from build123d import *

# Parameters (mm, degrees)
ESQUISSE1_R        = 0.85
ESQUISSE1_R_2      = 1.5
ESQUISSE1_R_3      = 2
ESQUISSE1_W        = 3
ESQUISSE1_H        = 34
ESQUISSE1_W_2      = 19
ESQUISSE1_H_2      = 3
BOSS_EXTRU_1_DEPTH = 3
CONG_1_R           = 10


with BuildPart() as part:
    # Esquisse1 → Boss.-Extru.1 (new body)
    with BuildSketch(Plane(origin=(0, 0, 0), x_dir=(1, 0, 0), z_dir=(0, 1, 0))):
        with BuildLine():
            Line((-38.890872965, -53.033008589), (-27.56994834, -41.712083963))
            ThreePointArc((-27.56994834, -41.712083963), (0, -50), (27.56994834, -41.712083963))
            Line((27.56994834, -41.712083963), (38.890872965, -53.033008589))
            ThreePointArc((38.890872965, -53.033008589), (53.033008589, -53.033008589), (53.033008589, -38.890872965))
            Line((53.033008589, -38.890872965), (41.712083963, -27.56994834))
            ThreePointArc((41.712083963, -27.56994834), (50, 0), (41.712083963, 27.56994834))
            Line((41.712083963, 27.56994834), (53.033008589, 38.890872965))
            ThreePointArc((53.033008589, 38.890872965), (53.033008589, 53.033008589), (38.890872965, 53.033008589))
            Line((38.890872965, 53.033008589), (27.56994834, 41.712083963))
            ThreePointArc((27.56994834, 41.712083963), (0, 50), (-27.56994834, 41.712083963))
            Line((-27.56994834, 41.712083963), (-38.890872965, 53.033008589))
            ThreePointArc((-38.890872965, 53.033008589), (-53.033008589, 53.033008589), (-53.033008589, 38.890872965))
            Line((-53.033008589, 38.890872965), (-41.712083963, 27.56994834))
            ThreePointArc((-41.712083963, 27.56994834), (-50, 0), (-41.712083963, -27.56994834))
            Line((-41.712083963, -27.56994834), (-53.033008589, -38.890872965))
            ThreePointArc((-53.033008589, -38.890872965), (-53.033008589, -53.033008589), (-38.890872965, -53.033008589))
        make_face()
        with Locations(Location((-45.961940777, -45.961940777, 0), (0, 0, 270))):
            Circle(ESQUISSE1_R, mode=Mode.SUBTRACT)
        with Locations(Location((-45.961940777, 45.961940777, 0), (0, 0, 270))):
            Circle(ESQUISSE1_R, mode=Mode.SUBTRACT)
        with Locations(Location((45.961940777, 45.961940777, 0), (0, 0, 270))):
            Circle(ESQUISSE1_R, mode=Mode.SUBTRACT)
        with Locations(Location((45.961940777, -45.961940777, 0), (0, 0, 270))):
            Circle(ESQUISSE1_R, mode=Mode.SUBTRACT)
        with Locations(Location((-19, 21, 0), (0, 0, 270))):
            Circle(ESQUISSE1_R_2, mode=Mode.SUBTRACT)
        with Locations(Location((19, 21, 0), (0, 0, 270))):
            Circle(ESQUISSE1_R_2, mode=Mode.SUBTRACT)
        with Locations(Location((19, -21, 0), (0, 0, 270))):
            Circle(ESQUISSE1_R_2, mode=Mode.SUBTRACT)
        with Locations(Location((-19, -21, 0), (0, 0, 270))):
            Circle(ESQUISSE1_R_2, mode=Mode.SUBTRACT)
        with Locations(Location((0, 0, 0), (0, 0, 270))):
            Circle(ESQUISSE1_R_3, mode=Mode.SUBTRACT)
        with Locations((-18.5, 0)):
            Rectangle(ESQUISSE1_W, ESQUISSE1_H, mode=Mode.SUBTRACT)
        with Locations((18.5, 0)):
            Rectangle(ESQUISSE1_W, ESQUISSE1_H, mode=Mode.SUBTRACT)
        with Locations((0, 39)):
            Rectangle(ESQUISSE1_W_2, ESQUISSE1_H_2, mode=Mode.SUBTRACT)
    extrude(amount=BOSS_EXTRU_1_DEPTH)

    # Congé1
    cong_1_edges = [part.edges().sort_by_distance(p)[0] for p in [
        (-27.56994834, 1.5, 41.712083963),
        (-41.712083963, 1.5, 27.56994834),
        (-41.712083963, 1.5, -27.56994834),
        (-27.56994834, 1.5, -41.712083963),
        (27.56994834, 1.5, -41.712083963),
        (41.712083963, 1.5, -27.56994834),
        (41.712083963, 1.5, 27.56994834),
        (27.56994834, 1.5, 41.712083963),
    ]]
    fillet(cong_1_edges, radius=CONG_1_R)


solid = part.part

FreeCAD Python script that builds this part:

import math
import FreeCAD as App
import Part
import Sketcher

V = App.Vector
Q = App.Units.Quantity


def edges_at(feature, points):
    """Names of the edges that pass closest to the given points."""
    edges = feature.Shape.Edges
    near = lambda p: min(range(len(edges)), key=lambda i: edges[i].distToShape(Part.Vertex(*p))[0])
    return sorted({f"Edge{near(p) + 1}" for p in points})

doc = App.newDocument("Part")
params = doc.addObject("Spreadsheet::Sheet", "Params")
for row, (alias, value) in enumerate([
    ("sketch1_diameter", "3 mm"),
    ("sketch1_diameter2", "4 mm"),
    ("sketch1_radius", "50 mm"),
    ("sketch1_radius2", "10 mm"),
    ("sketch1_diameter3", "1.7 mm"),
    ("pad1_length", "3 mm"),
    ("fillet_radius", "10 mm"),
], start=1):
    params.set(f"A{row}", alias)
    params.set(f"B{row}", "=" + value)
    params.setAlias(f"B{row}", alias)

body = doc.addObject("PartDesign::Body", "Body")

sketch1 = doc.addObject("Sketcher::SketchObject", "Sketch")
body.addObject(sketch1)
sketch1.AttachmentSupport = (doc.XZ_Plane, [""])
sketch1.MapMode = "FlatFace"
sketch1.addGeometry(Part.LineSegment(V(-38.9, 53, 0), V(-27.6, 41.7, 0)), False)
sketch1.addGeometry(Part.ArcOfCircle(Part.Circle(V(0, 0, 0), V(0, 0, 1), 50), math.radians(57), math.radians(123)), False)
sketch1.addGeometry(Part.LineSegment(V(27.6, 41.7, 0), V(38.9, 53, 0)), False)
sketch1.addGeometry(Part.ArcOfCircle(Part.Circle(V(46, 46, 0), V(0, 0, 1), 10), math.radians(-45), math.radians(135)), False)
sketch1.addGeometry(Part.LineSegment(V(53, 38.9, 0), V(41.7, 27.6, 0)), False)
sketch1.addGeometry(Part.ArcOfCircle(Part.Circle(V(0, 0, 0), V(0, 0, 1), 50), math.radians(-33), math.radians(33)), False)
sketch1.addGeometry(Part.LineSegment(V(41.7, -27.6, 0), V(53, -38.9, 0)), False)
sketch1.addGeometry(Part.ArcOfCircle(Part.Circle(V(46, -46, 0), V(0, 0, 1), 10), math.radians(-135), math.radians(45)), False)
sketch1.addGeometry(Part.LineSegment(V(38.9, -53, 0), V(27.6, -41.7, 0)), False)
sketch1.addGeometry(Part.ArcOfCircle(Part.Circle(V(0, 0, 0), V(0, 0, 1), 50), math.radians(-123), math.radians(-57)), False)
sketch1.addGeometry(Part.LineSegment(V(-27.6, -41.7, 0), V(-38.9, -53, 0)), False)
sketch1.addGeometry(Part.ArcOfCircle(Part.Circle(V(-46, -46, 0), V(0, 0, 1), 10), math.radians(135), math.radians(315)), False)
sketch1.addGeometry(Part.LineSegment(V(-53, -38.9, 0), V(-41.7, -27.6, 0)), False)
sketch1.addGeometry(Part.ArcOfCircle(Part.Circle(V(0, 0, 0), V(0, 0, 1), 50), math.radians(147), math.radians(213)), False)
sketch1.addGeometry(Part.LineSegment(V(-41.7, 27.6, 0), V(-53, 38.9, 0)), False)
sketch1.addGeometry(Part.ArcOfCircle(Part.Circle(V(-46, 46, 0), V(0, 0, 1), 10), math.radians(45), math.radians(225)), False)
sketch1.addGeometry(Part.Circle(V(-46, 46, 0), V(0, 0, 1), 0.8), False)
sketch1.addGeometry(Part.Circle(V(-19, 21, 0), V(0, 0, 1), 1.5), False)
sketch1.addGeometry(Part.Circle(V(46, 46, 0), V(0, 0, 1), 0.8), False)
sketch1.addGeometry(Part.Circle(V(19, 21, 0), V(0, 0, 1), 1.5), False)
sketch1.addGeometry(Part.LineSegment(V(-17, 17, 0), V(-20, 17, 0)), False)
sketch1.addGeometry(Part.LineSegment(V(-20, 17, 0), V(-20, -17, 0)), False)
sketch1.addGeometry(Part.LineSegment(V(-20, -17, 0), V(-17, -17, 0)), False)
sketch1.addGeometry(Part.LineSegment(V(-17, -17, 0), V(-17, 17, 0)), False)
sketch1.addGeometry(Part.Circle(V(-19, -21, 0), V(0, 0, 1), 1.5), False)
sketch1.addGeometry(Part.Circle(V(-46, -46, 0), V(0, 0, 1), 0.8), False)
sketch1.addGeometry(Part.Circle(V(0, 0, 0), V(0, 0, 1), 2), False)
sketch1.addGeometry(Part.LineSegment(V(20, 17, 0), V(17, 17, 0)), False)
sketch1.addGeometry(Part.LineSegment(V(17, 17, 0), V(17, -17, 0)), False)
sketch1.addGeometry(Part.LineSegment(V(17, -17, 0), V(20, -17, 0)), False)
sketch1.addGeometry(Part.LineSegment(V(20, -17, 0), V(20, 17, 0)), False)
sketch1.addGeometry(Part.Circle(V(19, -21, 0), V(0, 0, 1), 1.5), False)
sketch1.addGeometry(Part.LineSegment(V(9.5, -37.5, 0), V(-9.5, -37.5, 0)), False)
sketch1.addGeometry(Part.LineSegment(V(-9.5, -37.5, 0), V(-9.5, -40.5, 0)), False)
sketch1.addGeometry(Part.LineSegment(V(-9.5, -40.5, 0), V(9.5, -40.5, 0)), False)
sketch1.addGeometry(Part.LineSegment(V(9.5, -40.5, 0), V(9.5, -37.5, 0)), False)
sketch1.addGeometry(Part.Circle(V(46, -46, 0), V(0, 0, 1), 0.8), False)
sketch1.addConstraint(Sketcher.Constraint("Coincident", 0, 2, 1, 2))
sketch1.addConstraint(Sketcher.Constraint("Coincident", 1, 1, 2, 1))
sketch1.addConstraint(Sketcher.Constraint("Tangent", 2, 2, 3, 2))
sketch1.addConstraint(Sketcher.Constraint("Tangent", 3, 1, 4, 1))
sketch1.addConstraint(Sketcher.Constraint("Coincident", 4, 2, 5, 2))
sketch1.addConstraint(Sketcher.Constraint("Coincident", 5, 1, 6, 1))
sketch1.addConstraint(Sketcher.Constraint("Tangent", 6, 2, 7, 2))
sketch1.addConstraint(Sketcher.Constraint("Tangent", 7, 1, 8, 1))
sketch1.addConstraint(Sketcher.Constraint("Coincident", 8, 2, 9, 2))
sketch1.addConstraint(Sketcher.Constraint("Coincident", 9, 1, 10, 1))
sketch1.addConstraint(Sketcher.Constraint("Tangent", 10, 2, 11, 2))
sketch1.addConstraint(Sketcher.Constraint("Tangent", 11, 1, 12, 1))
sketch1.addConstraint(Sketcher.Constraint("Coincident", 12, 2, 13, 2))
sketch1.addConstraint(Sketcher.Constraint("Coincident", 13, 1, 14, 1))
sketch1.addConstraint(Sketcher.Constraint("Tangent", 14, 2, 15, 2))
sketch1.addConstraint(Sketcher.Constraint("Tangent", 15, 1, 0, 1))
sketch1.addConstraint(Sketcher.Constraint("Coincident", 20, 2, 21, 1))
sketch1.addConstraint(Sketcher.Constraint("Coincident", 21, 2, 22, 1))
sketch1.addConstraint(Sketcher.Constraint("Coincident", 22, 2, 23, 1))
sketch1.addConstraint(Sketcher.Constraint("Coincident", 23, 2, 20, 1))
sketch1.addConstraint(Sketcher.Constraint("Coincident", 27, 2, 28, 1))
sketch1.addConstraint(Sketcher.Constraint("Coincident", 28, 2, 29, 1))
sketch1.addConstraint(Sketcher.Constraint("Coincident", 29, 2, 30, 1))
sketch1.addConstraint(Sketcher.Constraint("Coincident", 30, 2, 27, 1))
sketch1.addConstraint(Sketcher.Constraint("Coincident", 32, 2, 33, 1))
sketch1.addConstraint(Sketcher.Constraint("Coincident", 33, 2, 34, 1))
sketch1.addConstraint(Sketcher.Constraint("Coincident", 34, 2, 35, 1))
sketch1.addConstraint(Sketcher.Constraint("Coincident", 35, 2, 32, 1))
sketch1.addConstraint(Sketcher.Constraint("Horizontal", 20))
sketch1.addConstraint(Sketcher.Constraint("Vertical", 21))
sketch1.addConstraint(Sketcher.Constraint("Horizontal", 22))
sketch1.addConstraint(Sketcher.Constraint("Vertical", 23))
sketch1.addConstraint(Sketcher.Constraint("Horizontal", 27))
sketch1.addConstraint(Sketcher.Constraint("Vertical", 28))
sketch1.addConstraint(Sketcher.Constraint("Horizontal", 29))
sketch1.addConstraint(Sketcher.Constraint("Vertical", 30))
sketch1.addConstraint(Sketcher.Constraint("Horizontal", 32))
sketch1.addConstraint(Sketcher.Constraint("Vertical", 33))
sketch1.addConstraint(Sketcher.Constraint("Horizontal", 34))
sketch1.addConstraint(Sketcher.Constraint("Vertical", 35))
sketch1.addConstraint(Sketcher.Constraint("Coincident", 1, 3, -1, 1))
sketch1.addConstraint(Sketcher.Constraint("Coincident", 5, 3, -1, 1))
sketch1.addConstraint(Sketcher.Constraint("Coincident", 9, 3, -1, 1))
sketch1.addConstraint(Sketcher.Constraint("Coincident", 13, 3, -1, 1))
sketch1.addConstraint(Sketcher.Constraint("Coincident", 26, 3, -1, 1))
sketch1.addConstraint(Sketcher.Constraint("Coincident", 16, 3, 15, 3))
sketch1.addConstraint(Sketcher.Constraint("Coincident", 18, 3, 3, 3))
sketch1.addConstraint(Sketcher.Constraint("Coincident", 25, 3, 11, 3))
sketch1.addConstraint(Sketcher.Constraint("Coincident", 36, 3, 7, 3))
sketch1.addConstraint(Sketcher.Constraint("Equal", 1, 5))
sketch1.addConstraint(Sketcher.Constraint("Equal", 3, 7))
sketch1.addConstraint(Sketcher.Constraint("Equal", 5, 9))
sketch1.addConstraint(Sketcher.Constraint("Equal", 7, 11))
sketch1.addConstraint(Sketcher.Constraint("Equal", 9, 13))
sketch1.addConstraint(Sketcher.Constraint("Equal", 11, 15))
sketch1.addConstraint(Sketcher.Constraint("Equal", 16, 18))
sketch1.addConstraint(Sketcher.Constraint("Equal", 17, 19))
sketch1.addConstraint(Sketcher.Constraint("Equal", 19, 24))
sketch1.addConstraint(Sketcher.Constraint("Equal", 18, 25))
sketch1.addConstraint(Sketcher.Constraint("Equal", 24, 31))
sketch1.addConstraint(Sketcher.Constraint("Equal", 25, 36))
sketch1.addConstraint(Sketcher.Constraint("Symmetric", 3, 3, 11, 3, -1, 1))
sketch1.addConstraint(Sketcher.Constraint("Symmetric", 7, 3, 15, 3, -1, 1))
sketch1.addConstraint(Sketcher.Constraint("Symmetric", 19, 3, 24, 3, -1, 1))
sketch1.addConstraint(Sketcher.Constraint("Symmetric", 17, 3, 31, 3, -1, 1))
sketch1.addConstraint(Sketcher.Constraint("Symmetric", 22, 2, 27, 2, -1, 1))
sketch1.addConstraint(Sketcher.Constraint("Symmetric", 20, 2, 29, 2, -1, 1))
sketch1.addConstraint(Sketcher.Constraint("Symmetric", 7, 3, 11, 3, -2))
sketch1.addConstraint(Sketcher.Constraint("Symmetric", 17, 3, 19, 3, -2))
sketch1.addConstraint(Sketcher.Constraint("Perpendicular", 0, 2))
sketch1.addConstraint(Sketcher.Constraint("Parallel", 2, 4))
sketch1.addConstraint(Sketcher.Constraint("Perpendicular", 4, 6))
sketch1.addConstraint(Sketcher.Constraint("Parallel", 6, 8))
sketch1.addConstraint(Sketcher.Constraint("Perpendicular", 8, 10))
sketch1.addConstraint(Sketcher.Constraint("Parallel", 10, 12))
sketch1.addConstraint(Sketcher.Constraint("Perpendicular", 12, 14))
sketch1.addConstraint(Sketcher.Constraint("Horizontal", 0, 2, 1, 1))
sketch1.addConstraint(Sketcher.Constraint("Horizontal", 23, 2, 27, 2))
sketch1.addConstraint(Sketcher.Constraint("Equal", 29, 33))
sketch1.addConstraint(Sketcher.Constraint("Equal", 2, 4))
sketch1.addConstraint(Sketcher.Constraint("Diameter", 17, Q("3 mm")))
sketch1.addConstraint(Sketcher.Constraint("Diameter", 26, Q("4 mm")))
sketch1.addConstraint(Sketcher.Constraint("Radius", 1, Q("50 mm")))
sketch1.addConstraint(Sketcher.Constraint("Radius", 3, Q("10 mm")))
sketch1.addConstraint(Sketcher.Constraint("Diameter", 16, Q("1.7 mm")))
sketch1.addConstraint(Sketcher.Constraint("DistanceX", 20, 2, 20, 1, Q("3 mm")))
sketch1.addConstraint(Sketcher.Constraint("DistanceX", 32, 2, 32, 1, Q("19 mm")))
sketch1.addConstraint(Sketcher.Constraint("DistanceY", 21, 2, 21, 1, Q("34 mm")))
sketch1.addConstraint(Sketcher.Constraint("DistanceX", 17, 3, -1, 1, Q("19 mm")))
sketch1.addConstraint(Sketcher.Constraint("DistanceY", -1, 1, 17, 3, Q("21 mm")))
sketch1.addConstraint(Sketcher.Constraint("DistanceX", 20, 2, -1, 1, Q("20 mm")))
sketch1.addConstraint(Sketcher.Constraint("DistanceX", 32, 2, -1, 1, Q("9.5 mm")))
sketch1.addConstraint(Sketcher.Constraint("DistanceY", 32, 2, -1, 1, Q("37.5 mm")))
sketch1.addConstraint(Sketcher.Constraint("DistanceX", -1, 1, 3, 3, Q("45.961941 mm")))
sketch1.setExpression("Constraints[80]", "Params.sketch1_diameter")
sketch1.setExpression("Constraints[81]", "Params.sketch1_diameter2")
sketch1.setExpression("Constraints[82]", "Params.sketch1_radius")
sketch1.setExpression("Constraints[83]", "Params.sketch1_radius2")
sketch1.setExpression("Constraints[84]", "Params.sketch1_diameter3")
pad1 = doc.addObject("PartDesign::Pad", "Pad")
body.addObject(pad1)
pad1.Profile = sketch1
pad1.setExpression("Length", "Params.pad1_length")
pad1.Reversed = True
doc.recompute()

fillet = doc.addObject("PartDesign::Fillet", "Fillet")
body.addObject(fillet)
fillet.Base = (pad1, edges_at(pad1, [
    (-27.57, 1.5, 41.712),
    (-41.712, 1.5, 27.57),
    (-41.712, 1.5, -27.57),
    (-27.57, 1.5, -41.712),
    (27.57, 1.5, -41.712),
    (41.712, 1.5, -27.57),
    (41.712, 1.5, 27.57),
    (27.57, 1.5, 41.712),
]))
fillet.setExpression("Radius", "Params.fillet_radius")

doc.recompute()
